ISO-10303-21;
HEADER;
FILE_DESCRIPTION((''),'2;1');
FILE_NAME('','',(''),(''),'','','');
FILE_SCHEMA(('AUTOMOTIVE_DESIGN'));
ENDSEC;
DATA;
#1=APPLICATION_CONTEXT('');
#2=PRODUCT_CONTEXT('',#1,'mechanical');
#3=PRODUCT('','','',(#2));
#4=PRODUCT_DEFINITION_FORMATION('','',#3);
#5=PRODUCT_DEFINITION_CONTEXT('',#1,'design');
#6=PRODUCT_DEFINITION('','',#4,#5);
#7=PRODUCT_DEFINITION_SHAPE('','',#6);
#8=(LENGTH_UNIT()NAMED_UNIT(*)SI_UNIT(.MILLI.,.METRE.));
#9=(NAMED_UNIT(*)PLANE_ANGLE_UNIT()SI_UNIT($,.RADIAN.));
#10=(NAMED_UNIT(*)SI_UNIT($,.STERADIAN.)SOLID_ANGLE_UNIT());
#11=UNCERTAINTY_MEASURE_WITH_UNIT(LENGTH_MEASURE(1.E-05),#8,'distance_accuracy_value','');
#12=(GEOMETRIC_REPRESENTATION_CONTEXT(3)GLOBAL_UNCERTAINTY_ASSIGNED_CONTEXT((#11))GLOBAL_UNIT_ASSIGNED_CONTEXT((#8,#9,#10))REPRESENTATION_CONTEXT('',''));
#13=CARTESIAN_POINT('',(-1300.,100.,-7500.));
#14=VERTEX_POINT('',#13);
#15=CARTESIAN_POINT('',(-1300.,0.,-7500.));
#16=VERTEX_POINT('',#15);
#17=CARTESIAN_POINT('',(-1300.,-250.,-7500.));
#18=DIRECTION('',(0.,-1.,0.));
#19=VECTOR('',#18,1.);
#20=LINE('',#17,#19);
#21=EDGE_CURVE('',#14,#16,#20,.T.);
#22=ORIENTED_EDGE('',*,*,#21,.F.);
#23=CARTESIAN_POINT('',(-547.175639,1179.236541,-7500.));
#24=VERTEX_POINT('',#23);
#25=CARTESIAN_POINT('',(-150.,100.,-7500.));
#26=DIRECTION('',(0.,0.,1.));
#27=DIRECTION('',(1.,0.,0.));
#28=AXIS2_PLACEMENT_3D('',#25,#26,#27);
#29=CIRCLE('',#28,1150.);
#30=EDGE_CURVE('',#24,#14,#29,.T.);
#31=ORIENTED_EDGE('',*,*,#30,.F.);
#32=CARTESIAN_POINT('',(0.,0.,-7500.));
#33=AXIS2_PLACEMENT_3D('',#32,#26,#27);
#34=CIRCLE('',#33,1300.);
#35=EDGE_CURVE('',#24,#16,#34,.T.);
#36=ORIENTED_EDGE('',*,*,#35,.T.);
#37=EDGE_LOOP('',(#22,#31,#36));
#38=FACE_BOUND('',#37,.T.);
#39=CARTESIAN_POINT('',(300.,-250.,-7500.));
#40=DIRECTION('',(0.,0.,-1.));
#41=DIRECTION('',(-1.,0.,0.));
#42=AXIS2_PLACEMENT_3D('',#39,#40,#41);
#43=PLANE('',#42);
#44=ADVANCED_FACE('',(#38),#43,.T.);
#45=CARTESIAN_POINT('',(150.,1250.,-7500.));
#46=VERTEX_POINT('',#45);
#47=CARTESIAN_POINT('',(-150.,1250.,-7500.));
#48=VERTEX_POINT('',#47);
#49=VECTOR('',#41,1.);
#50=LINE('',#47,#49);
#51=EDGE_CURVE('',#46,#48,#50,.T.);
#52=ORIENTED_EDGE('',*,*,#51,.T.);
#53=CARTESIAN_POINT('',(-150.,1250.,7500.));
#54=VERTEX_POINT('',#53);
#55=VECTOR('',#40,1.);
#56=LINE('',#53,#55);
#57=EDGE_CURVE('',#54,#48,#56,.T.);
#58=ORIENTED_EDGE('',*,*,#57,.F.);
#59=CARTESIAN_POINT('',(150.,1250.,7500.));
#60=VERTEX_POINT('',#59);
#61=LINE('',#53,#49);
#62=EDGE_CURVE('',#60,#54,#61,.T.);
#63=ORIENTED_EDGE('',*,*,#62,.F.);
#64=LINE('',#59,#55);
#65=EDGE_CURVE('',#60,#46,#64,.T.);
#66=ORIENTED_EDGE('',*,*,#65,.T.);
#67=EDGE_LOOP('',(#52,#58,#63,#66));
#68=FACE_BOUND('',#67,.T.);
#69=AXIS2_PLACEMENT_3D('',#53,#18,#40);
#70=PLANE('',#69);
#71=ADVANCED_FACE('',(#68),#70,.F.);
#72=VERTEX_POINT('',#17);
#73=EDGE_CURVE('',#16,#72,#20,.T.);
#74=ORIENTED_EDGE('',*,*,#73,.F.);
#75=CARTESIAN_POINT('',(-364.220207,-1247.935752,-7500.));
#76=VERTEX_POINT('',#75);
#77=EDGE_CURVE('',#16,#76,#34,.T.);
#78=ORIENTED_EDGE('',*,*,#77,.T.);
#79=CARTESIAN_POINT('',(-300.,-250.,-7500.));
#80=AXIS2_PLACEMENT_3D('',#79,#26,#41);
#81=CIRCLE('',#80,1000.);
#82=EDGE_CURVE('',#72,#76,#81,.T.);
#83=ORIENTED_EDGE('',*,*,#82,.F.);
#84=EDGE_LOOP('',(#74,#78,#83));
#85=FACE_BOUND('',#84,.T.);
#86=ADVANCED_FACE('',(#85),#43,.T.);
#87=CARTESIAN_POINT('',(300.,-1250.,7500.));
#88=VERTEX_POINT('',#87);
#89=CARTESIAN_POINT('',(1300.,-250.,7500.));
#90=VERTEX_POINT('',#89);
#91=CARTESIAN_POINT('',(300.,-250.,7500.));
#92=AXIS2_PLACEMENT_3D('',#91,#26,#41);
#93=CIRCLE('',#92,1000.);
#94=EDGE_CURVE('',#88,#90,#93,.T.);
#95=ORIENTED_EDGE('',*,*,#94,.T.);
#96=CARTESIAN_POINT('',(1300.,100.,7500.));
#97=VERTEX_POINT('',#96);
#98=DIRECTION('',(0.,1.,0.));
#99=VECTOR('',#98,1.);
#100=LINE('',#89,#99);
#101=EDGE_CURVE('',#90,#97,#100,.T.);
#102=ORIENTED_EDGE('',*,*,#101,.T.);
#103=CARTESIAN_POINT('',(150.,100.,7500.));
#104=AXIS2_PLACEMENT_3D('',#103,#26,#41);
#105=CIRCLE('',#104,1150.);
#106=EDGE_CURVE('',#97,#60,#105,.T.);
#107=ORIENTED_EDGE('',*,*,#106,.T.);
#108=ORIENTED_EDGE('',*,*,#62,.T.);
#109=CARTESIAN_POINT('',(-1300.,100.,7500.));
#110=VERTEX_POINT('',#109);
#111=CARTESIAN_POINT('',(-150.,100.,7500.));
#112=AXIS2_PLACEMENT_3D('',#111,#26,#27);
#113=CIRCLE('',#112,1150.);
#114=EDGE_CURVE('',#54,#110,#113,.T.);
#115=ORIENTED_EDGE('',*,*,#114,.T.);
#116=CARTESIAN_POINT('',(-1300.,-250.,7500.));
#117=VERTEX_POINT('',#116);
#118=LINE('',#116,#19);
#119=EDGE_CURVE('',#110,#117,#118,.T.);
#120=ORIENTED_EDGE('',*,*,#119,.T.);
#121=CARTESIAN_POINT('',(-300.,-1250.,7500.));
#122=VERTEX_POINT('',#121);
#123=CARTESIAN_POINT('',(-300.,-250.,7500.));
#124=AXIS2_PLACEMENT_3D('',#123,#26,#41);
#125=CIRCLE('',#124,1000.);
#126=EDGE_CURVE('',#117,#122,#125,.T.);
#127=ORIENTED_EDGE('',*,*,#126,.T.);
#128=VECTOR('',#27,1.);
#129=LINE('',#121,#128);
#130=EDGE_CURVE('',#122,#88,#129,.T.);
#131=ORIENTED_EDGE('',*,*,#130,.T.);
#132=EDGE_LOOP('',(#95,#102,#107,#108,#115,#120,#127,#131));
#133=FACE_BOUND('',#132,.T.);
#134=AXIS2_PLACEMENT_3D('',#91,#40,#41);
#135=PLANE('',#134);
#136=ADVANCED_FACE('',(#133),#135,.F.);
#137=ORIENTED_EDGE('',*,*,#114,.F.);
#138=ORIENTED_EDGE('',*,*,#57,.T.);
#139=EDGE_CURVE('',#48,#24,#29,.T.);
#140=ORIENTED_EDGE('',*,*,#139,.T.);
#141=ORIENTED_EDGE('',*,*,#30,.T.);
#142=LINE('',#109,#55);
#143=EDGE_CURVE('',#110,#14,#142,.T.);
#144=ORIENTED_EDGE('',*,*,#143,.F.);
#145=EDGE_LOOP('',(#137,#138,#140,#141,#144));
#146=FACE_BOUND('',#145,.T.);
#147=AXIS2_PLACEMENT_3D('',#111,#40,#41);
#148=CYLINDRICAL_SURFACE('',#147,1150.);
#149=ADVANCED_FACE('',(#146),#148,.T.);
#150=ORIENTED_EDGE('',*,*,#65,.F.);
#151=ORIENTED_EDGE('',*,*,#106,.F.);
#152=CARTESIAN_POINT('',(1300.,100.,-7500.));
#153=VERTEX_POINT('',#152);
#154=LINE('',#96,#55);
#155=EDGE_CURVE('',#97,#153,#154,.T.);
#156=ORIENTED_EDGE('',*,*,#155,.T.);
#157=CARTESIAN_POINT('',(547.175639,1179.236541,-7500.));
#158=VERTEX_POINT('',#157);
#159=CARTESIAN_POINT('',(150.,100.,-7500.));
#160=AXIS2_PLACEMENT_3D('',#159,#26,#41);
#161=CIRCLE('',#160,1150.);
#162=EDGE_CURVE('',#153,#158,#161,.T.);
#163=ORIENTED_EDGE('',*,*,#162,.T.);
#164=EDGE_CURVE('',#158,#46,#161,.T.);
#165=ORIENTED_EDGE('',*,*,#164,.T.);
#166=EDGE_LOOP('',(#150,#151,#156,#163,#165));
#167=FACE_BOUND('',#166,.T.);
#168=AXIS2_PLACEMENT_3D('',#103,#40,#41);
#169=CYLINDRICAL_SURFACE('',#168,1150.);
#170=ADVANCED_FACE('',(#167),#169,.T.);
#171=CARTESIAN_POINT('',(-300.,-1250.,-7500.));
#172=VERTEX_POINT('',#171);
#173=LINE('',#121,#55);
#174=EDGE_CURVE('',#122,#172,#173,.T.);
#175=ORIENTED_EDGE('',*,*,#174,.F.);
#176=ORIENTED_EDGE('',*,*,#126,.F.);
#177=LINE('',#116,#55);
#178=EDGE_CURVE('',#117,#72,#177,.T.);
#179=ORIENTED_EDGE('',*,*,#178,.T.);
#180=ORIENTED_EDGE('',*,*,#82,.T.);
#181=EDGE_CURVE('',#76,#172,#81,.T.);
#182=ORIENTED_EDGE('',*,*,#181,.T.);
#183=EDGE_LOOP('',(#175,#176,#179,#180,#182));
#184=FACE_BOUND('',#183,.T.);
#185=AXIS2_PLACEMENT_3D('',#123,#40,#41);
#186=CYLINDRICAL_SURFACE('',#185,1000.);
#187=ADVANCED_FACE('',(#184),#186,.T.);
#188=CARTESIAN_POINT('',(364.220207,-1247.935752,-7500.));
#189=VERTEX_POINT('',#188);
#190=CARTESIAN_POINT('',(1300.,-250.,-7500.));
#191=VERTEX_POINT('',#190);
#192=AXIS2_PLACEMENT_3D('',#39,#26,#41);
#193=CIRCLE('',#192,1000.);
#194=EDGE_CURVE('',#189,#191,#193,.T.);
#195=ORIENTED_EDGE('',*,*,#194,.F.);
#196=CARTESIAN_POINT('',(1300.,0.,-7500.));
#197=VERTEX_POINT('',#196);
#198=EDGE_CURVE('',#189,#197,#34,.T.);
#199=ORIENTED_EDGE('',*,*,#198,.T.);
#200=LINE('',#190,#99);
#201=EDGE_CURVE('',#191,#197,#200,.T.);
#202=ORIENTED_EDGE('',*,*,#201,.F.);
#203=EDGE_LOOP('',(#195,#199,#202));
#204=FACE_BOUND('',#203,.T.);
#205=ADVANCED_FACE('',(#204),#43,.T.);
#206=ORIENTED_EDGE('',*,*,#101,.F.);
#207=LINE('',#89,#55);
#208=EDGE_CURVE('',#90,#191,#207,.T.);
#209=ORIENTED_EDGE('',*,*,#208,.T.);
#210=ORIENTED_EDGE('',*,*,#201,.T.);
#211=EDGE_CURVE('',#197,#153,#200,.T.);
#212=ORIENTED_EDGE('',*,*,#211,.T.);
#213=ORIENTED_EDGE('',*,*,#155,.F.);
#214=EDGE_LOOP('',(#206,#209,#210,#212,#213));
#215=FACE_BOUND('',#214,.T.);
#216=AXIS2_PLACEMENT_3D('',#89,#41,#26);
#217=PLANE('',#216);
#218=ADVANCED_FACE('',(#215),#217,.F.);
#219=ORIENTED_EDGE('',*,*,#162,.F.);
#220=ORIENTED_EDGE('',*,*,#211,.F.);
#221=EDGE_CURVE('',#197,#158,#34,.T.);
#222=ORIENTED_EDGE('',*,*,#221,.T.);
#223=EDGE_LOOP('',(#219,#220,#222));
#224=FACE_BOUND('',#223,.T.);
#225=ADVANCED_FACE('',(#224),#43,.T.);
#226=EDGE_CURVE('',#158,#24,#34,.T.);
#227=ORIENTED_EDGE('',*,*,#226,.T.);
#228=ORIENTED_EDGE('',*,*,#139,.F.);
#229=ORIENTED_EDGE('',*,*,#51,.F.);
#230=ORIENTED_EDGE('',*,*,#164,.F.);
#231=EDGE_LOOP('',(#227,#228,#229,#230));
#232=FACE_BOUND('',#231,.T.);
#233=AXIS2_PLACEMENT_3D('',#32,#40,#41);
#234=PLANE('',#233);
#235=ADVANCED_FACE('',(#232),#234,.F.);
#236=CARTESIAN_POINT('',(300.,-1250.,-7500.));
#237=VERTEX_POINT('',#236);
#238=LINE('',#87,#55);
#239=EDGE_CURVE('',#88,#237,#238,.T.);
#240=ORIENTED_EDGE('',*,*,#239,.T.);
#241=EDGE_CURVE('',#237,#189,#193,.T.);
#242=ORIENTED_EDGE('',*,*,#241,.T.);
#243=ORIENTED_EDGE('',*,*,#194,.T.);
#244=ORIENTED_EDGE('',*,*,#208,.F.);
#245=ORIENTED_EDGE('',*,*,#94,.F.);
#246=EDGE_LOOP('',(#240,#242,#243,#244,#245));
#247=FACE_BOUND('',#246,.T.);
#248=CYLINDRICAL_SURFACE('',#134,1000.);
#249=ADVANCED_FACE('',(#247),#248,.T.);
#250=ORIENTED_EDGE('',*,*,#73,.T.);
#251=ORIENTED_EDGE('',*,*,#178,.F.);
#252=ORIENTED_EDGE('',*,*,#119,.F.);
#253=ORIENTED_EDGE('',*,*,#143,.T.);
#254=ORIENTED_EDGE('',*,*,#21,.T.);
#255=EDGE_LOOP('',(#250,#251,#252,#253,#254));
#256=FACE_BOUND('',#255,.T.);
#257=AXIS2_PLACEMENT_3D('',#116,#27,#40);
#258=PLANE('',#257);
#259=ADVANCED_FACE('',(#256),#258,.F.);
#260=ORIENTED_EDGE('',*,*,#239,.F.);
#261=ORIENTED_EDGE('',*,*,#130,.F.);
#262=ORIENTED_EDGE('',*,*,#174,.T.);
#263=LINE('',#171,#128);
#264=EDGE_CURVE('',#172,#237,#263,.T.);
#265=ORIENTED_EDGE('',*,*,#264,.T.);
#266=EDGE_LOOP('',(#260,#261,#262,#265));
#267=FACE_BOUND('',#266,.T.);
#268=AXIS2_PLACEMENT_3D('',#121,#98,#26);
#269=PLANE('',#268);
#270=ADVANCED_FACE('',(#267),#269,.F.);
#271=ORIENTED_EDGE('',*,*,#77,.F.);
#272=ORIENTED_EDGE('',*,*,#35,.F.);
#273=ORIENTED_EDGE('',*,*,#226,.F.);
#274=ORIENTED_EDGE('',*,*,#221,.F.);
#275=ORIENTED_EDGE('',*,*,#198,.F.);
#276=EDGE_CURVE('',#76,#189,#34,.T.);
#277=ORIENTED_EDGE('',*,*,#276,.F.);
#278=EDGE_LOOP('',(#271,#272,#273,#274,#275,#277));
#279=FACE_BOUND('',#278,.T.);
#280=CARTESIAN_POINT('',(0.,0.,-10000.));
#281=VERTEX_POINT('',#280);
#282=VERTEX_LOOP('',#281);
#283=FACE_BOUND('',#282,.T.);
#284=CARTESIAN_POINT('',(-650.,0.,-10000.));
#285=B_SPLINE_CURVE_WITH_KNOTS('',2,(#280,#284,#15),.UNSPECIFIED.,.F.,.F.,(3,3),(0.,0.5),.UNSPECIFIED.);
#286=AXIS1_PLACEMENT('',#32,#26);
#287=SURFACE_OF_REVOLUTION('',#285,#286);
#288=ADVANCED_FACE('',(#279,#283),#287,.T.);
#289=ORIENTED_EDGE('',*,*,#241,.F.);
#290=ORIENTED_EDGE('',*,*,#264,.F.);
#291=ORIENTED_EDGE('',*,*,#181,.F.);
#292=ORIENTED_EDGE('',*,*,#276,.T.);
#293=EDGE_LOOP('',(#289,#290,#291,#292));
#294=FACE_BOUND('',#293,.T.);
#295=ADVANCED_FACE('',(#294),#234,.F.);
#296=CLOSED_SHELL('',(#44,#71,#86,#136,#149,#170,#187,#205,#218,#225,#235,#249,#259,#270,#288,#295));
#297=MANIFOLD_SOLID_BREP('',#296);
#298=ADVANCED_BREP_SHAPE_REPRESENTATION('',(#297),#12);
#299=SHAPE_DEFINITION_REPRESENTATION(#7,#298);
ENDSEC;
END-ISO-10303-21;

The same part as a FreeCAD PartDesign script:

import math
import FreeCAD as App
import Part
import Sketcher
from FreeCAD import Vector
Q = App.Units.Quantity

doc = App.newDocument("Part")
body = doc.addObject("PartDesign::Body", "Body")

sketch1 = body.newObject("Sketcher::SketchObject", "Sketch")
sketch1.AttachmentSupport = (doc.getObject("XY_Plane"), [""])
sketch1.MapMode = "FlatFace"
sketch1.addGeometry([
    Part.LineSegment(Vector(-300, -1250, 0), Vector(300, -1250, 0)),
    Part.ArcOfCircle(Part.Circle(Vector(300, -250, 0), Vector(0, 0, 1), 1000), math.radians(-90), math.radians(0)),
    Part.LineSegment(Vector(1300, -250, 0), Vector(1300, 100, 0)),
    Part.ArcOfCircle(Part.Circle(Vector(150, 100, 0), Vector(0, 0, 1), 1150), math.radians(0), math.radians(90)),
    Part.LineSegment(Vector(150, 1250, 0), Vector(-150, 1250, 0)),
    Part.ArcOfCircle(Part.Circle(Vector(-150, 100, 0), Vector(0, 0, 1), 1150), math.radians(90), math.radians(180)),
    Part.LineSegment(Vector(-1300, 100, 0), Vector(-1300, -250, 0)),
    Part.ArcOfCircle(Part.Circle(Vector(-300, -250, 0), Vector(0, 0, 1), 1000), math.radians(180), math.radians(270)),
], False)
sketch1.addConstraint([
    Sketcher.Constraint("Tangent", 0, 2, 1, 1),
    Sketcher.Constraint("Tangent", 1, 2, 2, 1),
    Sketcher.Constraint("Coincident", 2, 2, 3, 1),
    Sketcher.Constraint("Tangent", 3, 2, 4, 1),
    Sketcher.Constraint("Coincident", 4, 2, 5, 1),
    Sketcher.Constraint("Tangent", 5, 2, 6, 1),
    Sketcher.Constraint("Coincident", 6, 2, 7, 1),
    Sketcher.Constraint("Coincident", 7, 2, 0, 1),
    Sketcher.Constraint("Horizontal", 0),
    Sketcher.Constraint("Vertical", 2),
    Sketcher.Constraint("Horizontal", 4),
    Sketcher.Constraint("Vertical", 6),
    Sketcher.Constraint("Equal", 3, 5),
    Sketcher.Constraint("Equal", 1, 7),
    Sketcher.Constraint("Horizontal", 5, 3, 2, 2),
    Sketcher.Constraint("Vertical", 5, 3, 4, 2),
    Sketcher.Constraint("Equal", 2, 6),
    Sketcher.Constraint("Radius", 1, Q("1000 mm")),
    Sketcher.Constraint("Radius", 3, Q("1150 mm")),
    Sketcher.Constraint("DistanceX", 0, 1, 0, 2, Q("600 mm")),
    Sketcher.Constraint("DistanceX", 4, 2, 4, 1, Q("300 mm")),
    Sketcher.Constraint("DistanceY", 2, 1, 2, 2, Q("350 mm")),
    Sketcher.Constraint("DistanceX", -1, 1, 1, 3, Q("300 mm")),
    Sketcher.Constraint("DistanceY", 1, 3, -1, 1, Q("250 mm")),
])
pad1 = body.newObject("PartDesign::Pad", "Pad")
pad1.Profile = sketch1
pad1.Length = 15000
pad1.Midplane = True

sketch2 = body.newObject("Sketcher::SketchObject", "Sketch001")
sketch2.AttachmentSupport = (doc.getObject("XZ_Plane"), [""])
sketch2.MapMode = "FlatFace"
sketch2.addGeometry([
    Part.LineSegment(Vector(-1300, -7500, 0), Vector(0, -7500, 0)),
    Part.LineSegment(Vector(0, -7500, 0), Vector(0, -10000, 0)),
    Part.BSplineCurve([Vector(-1300, -7500, 0), Vector(-650, -10000, 0), Vector(0, -10000, 0)], [3, 3], [0, 0.5], False, 2, [1, 1, 1], False),
], False)
sketch2.addConstraint([
    Sketcher.Constraint("Block", 2),
    Sketcher.Constraint("Coincident", 0, 2, 1, 1),
    Sketcher.Constraint("Coincident", 1, 2, 2, 2),
    Sketcher.Constraint("Coincident", 2, 1, 0, 1),
    Sketcher.Constraint("Horizontal", 0),
    Sketcher.Constraint("Vertical", 1),
])
revolution = body.newObject("PartDesign::Revolution", "Revolution")
revolution.Profile = sketch2
revolution.ReferenceAxis = (sketch2, ["V_Axis"])
revolution.Angle = 360

doc.recompute()
